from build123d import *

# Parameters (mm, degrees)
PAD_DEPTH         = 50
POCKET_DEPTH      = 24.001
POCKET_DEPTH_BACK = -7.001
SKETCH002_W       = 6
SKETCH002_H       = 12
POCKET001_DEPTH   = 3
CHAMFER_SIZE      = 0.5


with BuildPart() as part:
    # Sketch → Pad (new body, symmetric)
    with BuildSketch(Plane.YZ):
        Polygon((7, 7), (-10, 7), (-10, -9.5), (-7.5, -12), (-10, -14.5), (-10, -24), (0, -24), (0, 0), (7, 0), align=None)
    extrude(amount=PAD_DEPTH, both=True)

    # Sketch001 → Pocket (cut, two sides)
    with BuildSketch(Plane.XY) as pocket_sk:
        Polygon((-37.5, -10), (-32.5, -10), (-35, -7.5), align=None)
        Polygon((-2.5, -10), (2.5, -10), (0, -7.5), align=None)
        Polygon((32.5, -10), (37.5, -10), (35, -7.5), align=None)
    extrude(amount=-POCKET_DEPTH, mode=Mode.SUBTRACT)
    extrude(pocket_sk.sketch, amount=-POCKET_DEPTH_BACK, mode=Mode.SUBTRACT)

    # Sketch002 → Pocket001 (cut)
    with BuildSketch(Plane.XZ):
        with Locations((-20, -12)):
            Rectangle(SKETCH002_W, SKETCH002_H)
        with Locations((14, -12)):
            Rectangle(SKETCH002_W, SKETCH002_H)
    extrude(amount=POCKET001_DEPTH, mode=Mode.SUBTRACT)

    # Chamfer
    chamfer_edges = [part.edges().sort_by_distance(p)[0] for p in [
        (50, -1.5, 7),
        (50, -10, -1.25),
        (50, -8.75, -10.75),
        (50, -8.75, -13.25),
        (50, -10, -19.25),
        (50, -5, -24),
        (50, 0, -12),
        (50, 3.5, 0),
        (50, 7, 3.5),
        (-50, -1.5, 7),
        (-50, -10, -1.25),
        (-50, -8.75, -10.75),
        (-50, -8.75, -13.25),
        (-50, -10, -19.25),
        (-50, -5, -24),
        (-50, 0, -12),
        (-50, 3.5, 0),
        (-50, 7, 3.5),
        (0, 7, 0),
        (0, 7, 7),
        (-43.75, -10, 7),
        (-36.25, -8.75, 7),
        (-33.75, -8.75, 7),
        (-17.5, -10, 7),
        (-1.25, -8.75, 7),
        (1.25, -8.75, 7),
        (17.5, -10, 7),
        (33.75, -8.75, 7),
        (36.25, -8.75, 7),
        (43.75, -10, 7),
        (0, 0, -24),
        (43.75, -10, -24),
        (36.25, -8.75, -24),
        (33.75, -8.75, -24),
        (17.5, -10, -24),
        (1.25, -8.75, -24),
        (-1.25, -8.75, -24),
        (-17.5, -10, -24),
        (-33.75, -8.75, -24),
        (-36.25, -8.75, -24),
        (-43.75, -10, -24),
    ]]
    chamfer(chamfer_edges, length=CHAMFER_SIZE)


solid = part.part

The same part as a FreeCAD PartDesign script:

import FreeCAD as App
import Part
import Sketcher
from FreeCAD import Vector
Q = App.Units.Quantity


def edges_at(feature, points):
    """Names of the edges that pass closest to the given points."""
    edges = feature.Shape.Edges
    near = lambda p: min(range(len(edges)), key=lambda i: edges[i].distToShape(Part.Vertex(*p))[0])
    return sorted({f"Edge{near(p) + 1}" for p in points})

doc = App.newDocument("Part")
params = doc.addObject("Spreadsheet::Sheet", "Params")
for row, (alias, value) in enumerate([
    ("sketch1_width", "17 mm"),
    ("sketch1_width2", "10 mm"),
    ("sketch1_height", "24 mm"),
    ("sketch1_height2", "16.5 mm"),
    ("sketch1_height3", "9.5 mm"),
    ("pad1_length", "100 mm"),
    ("sketch2_width", "5 mm"),
    ("sketch3_width", "6 mm"),
    ("sketch3_height", "12 mm"),
    ("pocket2_length", "3 mm"),
    ("chamfer_size", "0.5 mm"),
], start=1):
    params.set(f"A{row}", alias)
    params.set(f"B{row}", "=" + value)
    params.setAlias(f"B{row}", alias)

body = doc.addObject("PartDesign::Body", "Body")

sketch1 = body.newObject("Sketcher::SketchObject", "Sketch")
sketch1.AttachmentSupport = (doc.getObject("YZ_Plane"), [""])
sketch1.MapMode = "FlatFace"
sketch1.addGeometry([
    Part.LineSegment(Vector(7, 7, 0), Vector(-10, 7, 0)),
    Part.LineSegment(Vector(-10, 7, 0), Vector(-10, -9.5, 0)),
    Part.LineSegment(Vector(-10, -9.5, 0), Vector(-7.5, -12, 0)),
    Part.LineSegment(Vector(-7.5, -12, 0), Vector(-10, -14.5, 0)),
    Part.LineSegment(Vector(-10, -14.5, 0), Vector(-10, -24, 0)),
    Part.LineSegment(Vector(-10, -24, 0), Vector(0, -24, 0)),
    Part.LineSegment(Vector(0, -24, 0), Vector(0, 0, 0)),
    Part.LineSegment(Vector(0, 0, 0), Vector(7, 0, 0)),
    Part.LineSegment(Vector(7, 0, 0), Vector(7, 7, 0)),
], False)
sketch1.addConstraint([
    Sketcher.Constraint("Coincident", 0, 2, 1, 1),
    Sketcher.Constraint("Coincident", 1, 2, 2, 1),
    Sketcher.Constraint("Coincident", 2, 2, 3, 1),
    Sketcher.Constraint("Coincident", 3, 2, 4, 1),
    Sketcher.Constraint("Coincident", 4, 2, 5, 1),
    Sketcher.Constraint("Coincident", 5, 2, 6, 1),
    Sketcher.Constraint("Coincident", 6, 2, 7, 1),
    Sketcher.Constraint("Coincident", 7, 2, 8, 1),
    Sketcher.Constraint("Coincident", 8, 2, 0, 1),
    Sketcher.Constraint("Horizontal", 0),
    Sketcher.Constraint("Vertical", 1),
    Sketcher.Constraint("Vertical", 4),
    Sketcher.Constraint("Horizontal", 5),
    Sketcher.Constraint("Vertical", 6),
    Sketcher.Constraint("Horizontal", 7),
    Sketcher.Constraint("Vertical", 8),
    Sketcher.Constraint("Coincident", 6, 2, -1, 1),
    Sketcher.Constraint("Perpendicular", 2, 3),
    Sketcher.Constraint("Vertical", 1, 2, 3, 2),
    Sketcher.Constraint("Equal", 7, 8),
    Sketcher.Constraint("Equal", 2, 3),
    Sketcher.Constraint("DistanceX", 0, 2, 0, 1, Q("17 mm")),
    Sketcher.Constraint("DistanceX", 5, 1, 5, 2, Q("10 mm")),
    Sketcher.Constraint("DistanceY", 6, 1, 6, 2, Q("24 mm")),
    Sketcher.Constraint("DistanceY", 1, 2, 1, 1, Q("16.5 mm")),
    Sketcher.Constraint("DistanceY", 4, 2, 4, 1, Q("9.5 mm")),
])
sketch1.setExpression("Constraints[21]", "Params.sketch1_width")
sketch1.setExpression("Constraints[22]", "Params.sketch1_width2")
sketch1.setExpression("Constraints[23]", "Params.sketch1_height")
sketch1.setExpression("Constraints[24]", "Params.sketch1_height2")
sketch1.setExpression("Constraints[25]", "Params.sketch1_height3")
pad1 = body.newObject("PartDesign::Pad", "Pad")
pad1.Profile = sketch1
pad1.setExpression("Length", "Params.pad1_length")
pad1.Midplane = True

sketch2 = body.newObject("Sketcher::SketchObject", "Sketch001")
sketch2.AttachmentSupport = (doc.getObject("XY_Plane"), [""])
sketch2.MapMode = "FlatFace"
sketch2.addGeometry([
    Part.LineSegment(Vector(-37.5, -10, 0), Vector(-32.5, -10, 0)),
    Part.LineSegment(Vector(-32.5, -10, 0), Vector(-35, -7.5, 0)),
    Part.LineSegment(Vector(-35, -7.5, 0), Vector(-37.5, -10, 0)),
    Part.LineSegment(Vector(-2.5, -10, 0), Vector(2.5, -10, 0)),
    Part.LineSegment(Vector(2.5, -10, 0), Vector(0, -7.5, 0)),
    Part.LineSegment(Vector(0, -7.5, 0), Vector(-2.5, -10, 0)),
    Part.LineSegment(Vector(32.5, -10, 0), Vector(37.5, -10, 0)),
    Part.LineSegment(Vector(37.5, -10, 0), Vector(35, -7.5, 0)),
    Part.LineSegment(Vector(35, -7.5, 0), Vector(32.5, -10, 0)),
], False)
sketch2.addConstraint([
    Sketcher.Constraint("Coincident", 0, 2, 1, 1),
    Sketcher.Constraint("Coincident", 1, 2, 2, 1),
    Sketcher.Constraint("Coincident", 2, 2, 0, 1),
    Sketcher.Constraint("Coincident", 3, 2, 4, 1),
    Sketcher.Constraint("Coincident", 4, 2, 5, 1),
    Sketcher.Constraint("Coincident", 5, 2, 3, 1),
    Sketcher.Constraint("Coincident", 6, 2, 7, 1),
    Sketcher.Constraint("Coincident", 7, 2, 8, 1),
    Sketcher.Constraint("Coincident", 8, 2, 6, 1),
    Sketcher.Constraint("Horizontal", 0),
    Sketcher.Constraint("Horizontal", 3),
    Sketcher.Constraint("Horizontal", 6),
    Sketcher.Constraint("Symmetric", 2, 2, 6, 2, -2),
    Sketcher.Constraint("Symmetric", 1, 2, 7, 2, -2),
    Sketcher.Constraint("PointOnObject", 4, 2, -2),
    Sketcher.Constraint("Perpendicular", 1, 2),
    Sketcher.Constraint("Perpendicular", 2, 4),
    Sketcher.Constraint("Perpendicular", 4, 5),
    Sketcher.Constraint("Perpendicular", 5, 7),
    Sketcher.Constraint("Perpendicular", 7, 8),
    Sketcher.Constraint("Horizontal", 2, 2, 3, 2),
    Sketcher.Constraint("Horizontal", 1, 2, 4, 2),
    Sketcher.Constraint("DistanceX", 0, 1, 0, 2, Q("5 mm")),
    Sketcher.Constraint("DistanceY", 0, 2, -1, 1, Q("10 mm")),
    Sketcher.Constraint("DistanceX", 1, 2, -1, 1, Q("35 mm")),
])
sketch2.setExpression("Constraints[22]", "Params.sketch2_width")
pocket1 = body.newObject("PartDesign::Pocket", "Pocket")
pocket1.Profile = sketch2
pocket1.Type = "ThroughAll"
pocket1.Midplane = True

sketch3 = body.newObject("Sketcher::SketchObject", "Sketch002")
sketch3.AttachmentSupport = (doc.getObject("XZ_Plane"), [""])
sketch3.MapMode = "FlatFace"
sketch3.addGeometry([
    Part.LineSegment(Vector(-23, -6, 0), Vector(-23, -18, 0)),
    Part.LineSegment(Vector(-23, -18, 0), Vector(-17, -18, 0)),
    Part.LineSegment(Vector(-17, -18, 0), Vector(-17, -6, 0)),
    Part.LineSegment(Vector(-17, -6, 0), Vector(-23, -6, 0)),
    Part.LineSegment(Vector(11, -6, 0), Vector(11, -18, 0)),
    Part.LineSegment(Vector(11, -18, 0), Vector(17, -18, 0)),
    Part.LineSegment(Vector(17, -18, 0), Vector(17, -6, 0)),
    Part.LineSegment(Vector(17, -6, 0), Vector(11, -6, 0)),
], False)
sketch3.addConstraint([
    Sketcher.Constraint("Coincident", 0, 2, 1, 1),
    Sketcher.Constraint("Coincident", 1, 2, 2, 1),
    Sketcher.Constraint("Coincident", 2, 2, 3, 1),
    Sketcher.Constraint("Coincident", 3, 2, 0, 1),
    Sketcher.Constraint("Coincident", 4, 2, 5, 1),
    Sketcher.Constraint("Coincident", 5, 2, 6, 1),
    Sketcher.Constraint("Coincident", 6, 2, 7, 1),
    Sketcher.Constraint("Coincident", 7, 2, 4, 1),
    Sketcher.Constraint("Vertical", 0),
    Sketcher.Constraint("Horizontal", 1),
    Sketcher.Constraint("Vertical", 2),
    Sketcher.Constraint("Horizontal", 3),
    Sketcher.Constraint("Vertical", 4),
    Sketcher.Constraint("Horizontal", 5),
    Sketcher.Constraint("Vertical", 6),
    Sketcher.Constraint("Horizontal", 7),
    Sketcher.Constraint("Symmetric", 1, 2, 5, 2, -2),
    Sketcher.Constraint("Horizontal", 3, 2, 6, 2),
    Sketcher.Constraint("Equal", 3, 5),
    Sketcher.Constraint("DistanceX", 1, 1, 1, 2, Q("6 mm")),
    Sketcher.Constraint("DistanceY", 0, 2, 0, 1, Q("12 mm")),
    Sketcher.Constraint("DistanceX", 0, 2, -1, 1, Q("23 mm")),
    Sketcher.Constraint("DistanceY", 0, 2, -1, 1, Q("18 mm")),
])
sketch3.setExpression("Constraints[19]", "Params.sketch3_width")
sketch3.setExpression("Constraints[20]", "Params.sketch3_height")
pocket2 = body.newObject("PartDesign::Pocket", "Pocket001")
pocket2.Profile = sketch3
pocket2.setExpression("Length", "Params.pocket2_length")
pocket2.Reversed = True
doc.recompute()

chamfer = body.newObject("PartDesign::Chamfer", "Chamfer")
chamfer.Base = (pocket2, edges_at(pocket2, [
    (50, -1.5, 7),
    (50, -10, -1.25),
    (50, -8.75, -10.75),
    (50, -8.75, -13.25),
    (50, -10, -19.25),
    (50, -5, -24),
    (50, 0, -12),
    (50, 3.5, 0),
    (50, 7, 3.5),
    (-50, -1.5, 7),
    (-50, -10, -1.25),
    (-50, -8.75, -10.75),
    (-50, -8.75, -13.25),
    (-50, -10, -19.25),
    (-50, -5, -24),
    (-50, 0, -12),
    (-50, 3.5, 0),
    (-50, 7, 3.5),
    (0, 7, 0),
    (0, 7, 7),
    (-43.75, -10, 7),
    (-36.25, -8.75, 7),
    (-33.75, -8.75, 7),
    (-17.5, -10, 7),
    (-1.25, -8.75, 7),
    (1.25, -8.75, 7),
    (17.5, -10, 7),
    (33.75, -8.75, 7),
    (36.25, -8.75, 7),
    (43.75, -10, 7),
    (0, 0, -24),
    (43.75, -10, -24),
    (36.25, -8.75, -24),
    (33.75, -8.75, -24),
    (17.5, -10, -24),
    (1.25, -8.75, -24),
    (-1.25, -8.75, -24),
    (-17.5, -10, -24),
    (-33.75, -8.75, -24),
    (-36.25, -8.75, -24),
    (-43.75, -10, -24),
]))
chamfer.setExpression("Size", "Params.chamfer_size")

doc.recompute()
